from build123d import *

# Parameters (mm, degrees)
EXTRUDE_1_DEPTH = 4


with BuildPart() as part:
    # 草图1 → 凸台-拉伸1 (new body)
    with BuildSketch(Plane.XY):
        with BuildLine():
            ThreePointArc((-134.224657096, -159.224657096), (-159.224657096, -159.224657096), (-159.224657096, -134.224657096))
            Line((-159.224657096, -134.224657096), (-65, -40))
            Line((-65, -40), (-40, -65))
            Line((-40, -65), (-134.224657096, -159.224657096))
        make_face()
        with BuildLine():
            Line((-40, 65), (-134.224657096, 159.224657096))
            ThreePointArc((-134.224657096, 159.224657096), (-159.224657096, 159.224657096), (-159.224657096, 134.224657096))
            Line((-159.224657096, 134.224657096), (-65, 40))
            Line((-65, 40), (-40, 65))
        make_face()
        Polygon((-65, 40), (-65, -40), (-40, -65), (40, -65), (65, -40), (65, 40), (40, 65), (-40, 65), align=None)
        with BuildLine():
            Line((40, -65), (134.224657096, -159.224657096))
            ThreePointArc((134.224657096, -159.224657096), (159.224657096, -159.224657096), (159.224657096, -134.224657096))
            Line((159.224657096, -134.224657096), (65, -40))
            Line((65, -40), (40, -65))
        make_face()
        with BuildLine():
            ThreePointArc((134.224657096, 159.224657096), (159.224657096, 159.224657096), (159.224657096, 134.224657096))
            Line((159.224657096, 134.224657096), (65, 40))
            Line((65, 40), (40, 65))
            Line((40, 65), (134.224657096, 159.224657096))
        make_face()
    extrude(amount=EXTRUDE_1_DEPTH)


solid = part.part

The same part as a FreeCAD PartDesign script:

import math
import FreeCAD as App
import Part
import Sketcher

V = App.Vector

doc = App.newDocument("Part")
body = doc.addObject("PartDesign::Body", "Body")

# Sketch on XY plane
sketch1 = body.newObject("Sketcher::SketchObject", "Sketch")
sketch1.AttachmentSupport = (doc.getObject("XY_Plane"), [""])
sketch1.MapMode = "FlatFace"
sketch1.addGeometry([
    Part.ArcOfCircle(Part.Circle(V(-147, -147, 0), V(0, 0, 1), 18), math.radians(135), math.radians(315)),  # 0
    Part.LineSegment(V(-134, -159, 0), V(-40, -65, 0)),  # 1
    Part.LineSegment(V(-40, -65, 0), V(40, -65, 0)),  # 2
    Part.LineSegment(V(40, -65, 0), V(134, -159, 0)),  # 3
    Part.ArcOfCircle(Part.Circle(V(147, -147, 0), V(0, 0, 1), 18), math.radians(-135), math.radians(45)),  # 4
    Part.LineSegment(V(159, -134, 0), V(65, -40, 0)),  # 5
    Part.LineSegment(V(65, -40, 0), V(65, 40, 0)),  # 6
    Part.LineSegment(V(65, 40, 0), V(159, 134, 0)),  # 7
    Part.ArcOfCircle(Part.Circle(V(147, 147, 0), V(0, 0, 1), 18), math.radians(-45), math.radians(135)),  # 8
    Part.LineSegment(V(134, 159, 0), V(40, 65, 0)),  # 9
    Part.LineSegment(V(40, 65, 0), V(-40, 65, 0)),  # 10
    Part.LineSegment(V(-40, 65, 0), V(-134, 159, 0)),  # 11
    Part.ArcOfCircle(Part.Circle(V(-147, 147, 0), V(0, 0, 1), 18), math.radians(45), math.radians(225)),  # 12
    Part.LineSegment(V(-159, 134, 0), V(-65, 40, 0)),  # 13
    Part.LineSegment(V(-65, 40, 0), V(-65, -40, 0)),  # 14
    Part.LineSegment(V(-65, -40, 0), V(-159, -134, 0)),  # 15
], False)
sketch1.addConstraint([
    Sketcher.Constraint("Tangent", 0, 2, 1, 1),
    Sketcher.Constraint("Coincident", 1, 2, 2, 1),
    Sketcher.Constraint("Coincident", 2, 2, 3, 1),
    Sketcher.Constraint("Tangent", 3, 2, 4, 1),
    Sketcher.Constraint("Tangent", 4, 2, 5, 1),
    Sketcher.Constraint("Coincident", 5, 2, 6, 1),
    Sketcher.Constraint("Coincident", 6, 2, 7, 1),
    Sketcher.Constraint("Tangent", 7, 2, 8, 1),
    Sketcher.Constraint("Tangent", 8, 2, 9, 1),
    Sketcher.Constraint("Coincident", 9, 2, 10, 1),
    Sketcher.Constraint("Coincident", 10, 2, 11, 1),
    Sketcher.Constraint("Tangent", 11, 2, 12, 1),
    Sketcher.Constraint("Tangent", 12, 2, 13, 1),
    Sketcher.Constraint("Coincident", 13, 2, 14, 1),
    Sketcher.Constraint("Coincident", 14, 2, 15, 1),
    Sketcher.Constraint("Tangent", 15, 2, 0, 1),
    Sketcher.Constraint("Horizontal", 2),
    Sketcher.Constraint("Vertical", 6),
    Sketcher.Constraint("Horizontal", 10),
    Sketcher.Constraint("Vertical", 14),
    Sketcher.Constraint("Equal", 0, 4),
    Sketcher.Constraint("Equal", 4, 8),
    Sketcher.Constraint("Equal", 8, 12),
    Sketcher.Constraint("Symmetric", 0, 3, 8, 3, -1, 1),
    Sketcher.Constraint("Symmetric", 4, 3, 12, 3, -1, 1),
    Sketcher.Constraint("Symmetric", 1, 2, 9, 2, -1, 1),
    Sketcher.Constraint("Symmetric", 5, 2, 13, 2, -1, 1),
    Sketcher.Constraint("Symmetric", 0, 3, 4, 3, -2),
    Sketcher.Constraint("Perpendicular", 1, 3),
    Sketcher.Constraint("Parallel", 3, 5),
    Sketcher.Constraint("Perpendicular", 5, 7),
    Sketcher.Constraint("Perpendicular", 9, 11),
    Sketcher.Constraint("Perpendicular", 13, 15),
    Sketcher.Constraint("Horizontal", 0, 2, 3, 2),
    Sketcher.Constraint("Equal", 10, 6),
    Sketcher.Constraint("Equal", 3, 5),
    Sketcher.Constraint("DistanceX", 2, 1, 2, 2, 80.0),
    Sketcher.Constraint("DistanceY", 1, 2, -1, 1, 65.0),
    Sketcher.Constraint("Distance", 1, 133.253788),
])
pad1 = body.newObject("PartDesign::Pad", "Pad")
pad1.Profile = sketch1
pad1.Length = 4

doc.recompute()
